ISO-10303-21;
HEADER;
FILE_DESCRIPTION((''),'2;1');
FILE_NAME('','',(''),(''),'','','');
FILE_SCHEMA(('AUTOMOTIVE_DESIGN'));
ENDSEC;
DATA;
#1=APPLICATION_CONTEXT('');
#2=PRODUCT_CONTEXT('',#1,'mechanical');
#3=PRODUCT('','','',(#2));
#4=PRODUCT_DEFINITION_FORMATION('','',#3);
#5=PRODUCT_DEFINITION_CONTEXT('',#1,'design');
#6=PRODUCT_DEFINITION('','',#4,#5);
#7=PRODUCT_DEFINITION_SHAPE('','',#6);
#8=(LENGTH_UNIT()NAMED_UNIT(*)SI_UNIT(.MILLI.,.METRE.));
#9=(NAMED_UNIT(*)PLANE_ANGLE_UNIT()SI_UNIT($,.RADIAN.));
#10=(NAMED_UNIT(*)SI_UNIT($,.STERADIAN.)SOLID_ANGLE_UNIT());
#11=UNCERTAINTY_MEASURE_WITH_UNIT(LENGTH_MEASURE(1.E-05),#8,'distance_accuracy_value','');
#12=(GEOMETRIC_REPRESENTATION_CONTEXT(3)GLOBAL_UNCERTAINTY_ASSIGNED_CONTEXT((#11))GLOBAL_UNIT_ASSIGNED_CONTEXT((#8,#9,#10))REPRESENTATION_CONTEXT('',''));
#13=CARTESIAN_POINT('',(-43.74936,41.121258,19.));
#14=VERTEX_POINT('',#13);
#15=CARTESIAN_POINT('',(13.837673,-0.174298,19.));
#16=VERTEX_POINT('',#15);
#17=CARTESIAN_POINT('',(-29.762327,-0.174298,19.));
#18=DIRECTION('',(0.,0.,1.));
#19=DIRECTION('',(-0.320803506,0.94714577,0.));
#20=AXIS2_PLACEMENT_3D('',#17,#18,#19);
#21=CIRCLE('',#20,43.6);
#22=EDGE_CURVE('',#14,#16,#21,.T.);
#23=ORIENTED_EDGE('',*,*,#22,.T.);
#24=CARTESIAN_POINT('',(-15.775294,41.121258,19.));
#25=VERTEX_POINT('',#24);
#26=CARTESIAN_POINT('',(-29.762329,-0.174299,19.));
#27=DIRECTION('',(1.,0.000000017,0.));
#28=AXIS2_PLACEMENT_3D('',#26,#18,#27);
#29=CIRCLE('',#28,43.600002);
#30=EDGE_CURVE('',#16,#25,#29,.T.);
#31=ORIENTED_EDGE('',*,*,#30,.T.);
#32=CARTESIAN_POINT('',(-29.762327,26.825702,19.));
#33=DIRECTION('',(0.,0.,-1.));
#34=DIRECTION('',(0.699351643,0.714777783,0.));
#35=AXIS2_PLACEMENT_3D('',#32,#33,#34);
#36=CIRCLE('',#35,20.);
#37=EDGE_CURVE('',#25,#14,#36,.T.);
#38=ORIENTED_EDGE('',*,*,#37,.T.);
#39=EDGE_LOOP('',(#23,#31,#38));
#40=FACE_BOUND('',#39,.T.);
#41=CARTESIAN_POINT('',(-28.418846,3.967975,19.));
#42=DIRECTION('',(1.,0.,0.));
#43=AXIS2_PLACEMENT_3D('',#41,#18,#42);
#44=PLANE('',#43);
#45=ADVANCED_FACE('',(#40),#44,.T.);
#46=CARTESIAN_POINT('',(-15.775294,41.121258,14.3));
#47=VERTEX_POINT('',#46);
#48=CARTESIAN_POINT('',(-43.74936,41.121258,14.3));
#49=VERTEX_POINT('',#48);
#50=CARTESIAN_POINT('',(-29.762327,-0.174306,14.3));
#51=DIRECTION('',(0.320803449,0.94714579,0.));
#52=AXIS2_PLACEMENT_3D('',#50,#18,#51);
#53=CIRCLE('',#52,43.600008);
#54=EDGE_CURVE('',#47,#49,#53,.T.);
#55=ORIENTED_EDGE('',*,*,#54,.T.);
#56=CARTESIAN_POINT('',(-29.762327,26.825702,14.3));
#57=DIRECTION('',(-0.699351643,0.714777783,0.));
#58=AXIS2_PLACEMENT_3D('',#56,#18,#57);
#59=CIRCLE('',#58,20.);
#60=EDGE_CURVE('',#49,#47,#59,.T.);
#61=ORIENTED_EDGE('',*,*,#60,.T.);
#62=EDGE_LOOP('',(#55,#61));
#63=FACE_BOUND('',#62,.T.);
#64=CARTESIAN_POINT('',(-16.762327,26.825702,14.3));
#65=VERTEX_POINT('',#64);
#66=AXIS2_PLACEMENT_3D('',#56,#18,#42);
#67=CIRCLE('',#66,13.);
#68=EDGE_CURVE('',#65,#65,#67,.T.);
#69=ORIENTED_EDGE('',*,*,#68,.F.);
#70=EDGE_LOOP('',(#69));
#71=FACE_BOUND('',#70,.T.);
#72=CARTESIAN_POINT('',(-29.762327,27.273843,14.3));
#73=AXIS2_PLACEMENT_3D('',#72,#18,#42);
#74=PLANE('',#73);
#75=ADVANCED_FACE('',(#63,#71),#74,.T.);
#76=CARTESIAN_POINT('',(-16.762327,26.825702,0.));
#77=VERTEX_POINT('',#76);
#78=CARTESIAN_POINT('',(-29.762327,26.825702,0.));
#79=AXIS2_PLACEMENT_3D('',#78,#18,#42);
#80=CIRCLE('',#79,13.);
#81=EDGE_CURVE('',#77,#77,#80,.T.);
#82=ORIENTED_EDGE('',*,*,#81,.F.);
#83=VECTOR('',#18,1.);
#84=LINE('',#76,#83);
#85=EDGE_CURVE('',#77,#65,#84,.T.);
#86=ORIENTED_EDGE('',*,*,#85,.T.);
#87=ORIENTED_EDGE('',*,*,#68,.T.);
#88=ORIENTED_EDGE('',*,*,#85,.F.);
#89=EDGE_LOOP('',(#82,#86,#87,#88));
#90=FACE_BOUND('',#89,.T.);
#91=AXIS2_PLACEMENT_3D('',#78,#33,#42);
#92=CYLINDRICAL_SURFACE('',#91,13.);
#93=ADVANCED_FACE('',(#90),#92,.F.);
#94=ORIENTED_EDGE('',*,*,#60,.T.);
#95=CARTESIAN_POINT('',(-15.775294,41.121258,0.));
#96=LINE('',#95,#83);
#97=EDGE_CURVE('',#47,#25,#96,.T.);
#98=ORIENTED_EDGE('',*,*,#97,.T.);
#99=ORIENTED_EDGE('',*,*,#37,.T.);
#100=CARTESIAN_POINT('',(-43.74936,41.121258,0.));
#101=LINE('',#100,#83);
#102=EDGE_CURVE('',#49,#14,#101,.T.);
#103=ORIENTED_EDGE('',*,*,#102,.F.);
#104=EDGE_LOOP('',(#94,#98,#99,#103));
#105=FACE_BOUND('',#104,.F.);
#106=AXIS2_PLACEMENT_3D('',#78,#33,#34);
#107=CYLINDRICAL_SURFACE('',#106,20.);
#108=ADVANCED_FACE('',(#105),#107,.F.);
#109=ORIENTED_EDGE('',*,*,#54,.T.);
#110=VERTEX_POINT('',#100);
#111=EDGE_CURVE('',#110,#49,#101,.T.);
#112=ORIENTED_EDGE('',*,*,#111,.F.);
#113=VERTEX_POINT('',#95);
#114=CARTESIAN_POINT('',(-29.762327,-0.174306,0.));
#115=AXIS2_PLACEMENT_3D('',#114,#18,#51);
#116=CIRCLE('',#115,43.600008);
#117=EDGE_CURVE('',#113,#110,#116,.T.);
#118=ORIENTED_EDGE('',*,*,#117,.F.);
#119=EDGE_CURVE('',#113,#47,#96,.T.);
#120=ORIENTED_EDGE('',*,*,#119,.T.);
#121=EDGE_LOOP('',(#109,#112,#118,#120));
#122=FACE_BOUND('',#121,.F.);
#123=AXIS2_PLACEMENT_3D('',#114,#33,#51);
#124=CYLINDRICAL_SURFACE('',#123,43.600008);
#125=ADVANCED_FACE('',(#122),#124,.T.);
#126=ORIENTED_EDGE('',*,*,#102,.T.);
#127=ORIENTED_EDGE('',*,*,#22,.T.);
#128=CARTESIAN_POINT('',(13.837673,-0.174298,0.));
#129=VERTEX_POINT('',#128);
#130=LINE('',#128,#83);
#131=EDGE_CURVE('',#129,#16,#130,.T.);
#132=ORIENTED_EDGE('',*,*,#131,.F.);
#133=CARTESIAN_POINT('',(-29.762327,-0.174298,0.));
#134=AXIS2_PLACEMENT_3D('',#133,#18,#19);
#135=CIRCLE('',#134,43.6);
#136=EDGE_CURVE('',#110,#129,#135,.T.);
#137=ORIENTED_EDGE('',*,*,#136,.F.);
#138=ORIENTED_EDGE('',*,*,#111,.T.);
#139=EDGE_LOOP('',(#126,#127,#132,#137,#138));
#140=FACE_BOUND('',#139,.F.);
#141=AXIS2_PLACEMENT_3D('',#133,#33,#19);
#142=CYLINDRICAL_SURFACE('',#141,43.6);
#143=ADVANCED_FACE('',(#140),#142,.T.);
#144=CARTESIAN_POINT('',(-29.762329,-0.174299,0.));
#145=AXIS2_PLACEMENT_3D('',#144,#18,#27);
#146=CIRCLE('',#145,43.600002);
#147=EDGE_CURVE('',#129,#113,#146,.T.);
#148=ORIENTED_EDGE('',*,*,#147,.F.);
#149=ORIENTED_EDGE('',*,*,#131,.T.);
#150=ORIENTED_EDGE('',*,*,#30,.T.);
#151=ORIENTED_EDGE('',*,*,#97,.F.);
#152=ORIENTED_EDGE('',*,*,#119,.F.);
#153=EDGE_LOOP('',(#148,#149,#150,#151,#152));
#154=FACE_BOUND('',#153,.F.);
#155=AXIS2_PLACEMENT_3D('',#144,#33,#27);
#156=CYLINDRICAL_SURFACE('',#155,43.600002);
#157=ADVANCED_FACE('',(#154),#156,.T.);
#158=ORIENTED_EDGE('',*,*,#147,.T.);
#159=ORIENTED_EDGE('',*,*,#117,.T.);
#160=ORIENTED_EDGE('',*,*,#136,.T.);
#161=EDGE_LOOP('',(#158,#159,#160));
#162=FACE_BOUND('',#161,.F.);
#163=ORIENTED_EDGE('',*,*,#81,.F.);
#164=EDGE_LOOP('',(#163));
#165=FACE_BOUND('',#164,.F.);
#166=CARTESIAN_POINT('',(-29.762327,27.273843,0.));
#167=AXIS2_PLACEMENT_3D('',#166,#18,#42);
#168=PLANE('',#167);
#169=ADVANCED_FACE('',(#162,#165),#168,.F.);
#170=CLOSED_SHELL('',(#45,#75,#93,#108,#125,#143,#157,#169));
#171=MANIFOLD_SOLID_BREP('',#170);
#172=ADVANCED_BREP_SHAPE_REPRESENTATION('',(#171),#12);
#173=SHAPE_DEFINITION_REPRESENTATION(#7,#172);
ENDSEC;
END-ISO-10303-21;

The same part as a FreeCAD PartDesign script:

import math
import FreeCAD as App
import Part
import Sketcher

V = App.Vector

doc = App.newDocument("Part")
body = doc.addObject("PartDesign::Body", "Body")

sketch1 = body.newObject("Sketcher::SketchObject", "Sketch")
sketch1.AttachmentSupport = (doc.getObject("XY_Plane"), [""])
sketch1.MapMode = "FlatFace"
sketch1.addGeometry([
    Part.ArcOfCircle(Part.Circle(V(-30, 0, 0), V(0, 0, 1), 44), math.radians(109), math.radians(360)),
    Part.ArcOfCircle(Part.Circle(V(-30, 0, 0), V(0, 0, 1), 44), math.radians(0), math.radians(71)),
    Part.ArcOfCircle(Part.Circle(V(-30, 27, 0), V(0, 0, 1), 20), math.radians(134), math.radians(406)),
], False)
sketch1.addConstraint([
    Sketcher.Constraint("Tangent", 0, 2, 1, 1),
    Sketcher.Constraint("Coincident", 1, 2, 2, 2),
    Sketcher.Constraint("Coincident", 2, 1, 0, 1),
    Sketcher.Constraint("Equal", 0, 1),
    Sketcher.Constraint("Horizontal", 1, 3, 0, 2),
    Sketcher.Constraint("Horizontal", 1, 2, 2, 1),
    Sketcher.Constraint("Radius", 2, 20.0),
    Sketcher.Constraint("Radius", 0, 43.6),
    Sketcher.Constraint("DistanceY", 0, 3, 2, 3, 27.0),
    Sketcher.Constraint("DistanceY", 1, 3, -1, 1, 0.174299),
    Sketcher.Constraint("DistanceX", 1, 3, -1, 1, 29.762329),
])
pad1 = body.newObject("PartDesign::Pad", "Pad")
pad1.Profile = sketch1
pad1.Length = 19

sketch2 = body.newObject("Sketcher::SketchObject", "Sketch001")
sketch2.AttachmentSupport = (doc.getObject("XY_Plane"), [""])
sketch2.MapMode = "FlatFace"
sketch2.addGeometry([
    Part.ArcOfCircle(Part.Circle(V(-30, 27, 0), V(0, 0, 1), 20), math.radians(134), math.radians(406)),
    Part.ArcOfCircle(Part.Circle(V(-30, 0, 0), V(0, 0, 1), 44), math.radians(71), math.radians(109)),
    Part.Circle(V(-30, 27, 0), V(0, 0, 1), 13),
], False)
sketch2.addConstraint([
    Sketcher.Constraint("Coincident", 0, 1, 1, 2),
    Sketcher.Constraint("Coincident", 1, 1, 0, 2),
    Sketcher.Constraint("Coincident", 2, 3, 0, 3),
    Sketcher.Constraint("Horizontal", 0, 1, 1, 1),
    Sketcher.Constraint("Diameter", 2, 26.0),
    Sketcher.Constraint("Radius", 0, 20.0),
    Sketcher.Constraint("Radius", 1, 43.600008),
    Sketcher.Constraint("DistanceY", -1, 1, 2, 3, 26.825702),
    Sketcher.Constraint("DistanceX", 0, 1, -1, 1, 43.74936),
    Sketcher.Constraint("DistanceY", -1, 1, 0, 1, 41.121258),
])
pad2 = body.newObject("PartDesign::Pad", "Pad001")
pad2.Profile = sketch2
pad2.Length = 14.3

doc.recompute()
